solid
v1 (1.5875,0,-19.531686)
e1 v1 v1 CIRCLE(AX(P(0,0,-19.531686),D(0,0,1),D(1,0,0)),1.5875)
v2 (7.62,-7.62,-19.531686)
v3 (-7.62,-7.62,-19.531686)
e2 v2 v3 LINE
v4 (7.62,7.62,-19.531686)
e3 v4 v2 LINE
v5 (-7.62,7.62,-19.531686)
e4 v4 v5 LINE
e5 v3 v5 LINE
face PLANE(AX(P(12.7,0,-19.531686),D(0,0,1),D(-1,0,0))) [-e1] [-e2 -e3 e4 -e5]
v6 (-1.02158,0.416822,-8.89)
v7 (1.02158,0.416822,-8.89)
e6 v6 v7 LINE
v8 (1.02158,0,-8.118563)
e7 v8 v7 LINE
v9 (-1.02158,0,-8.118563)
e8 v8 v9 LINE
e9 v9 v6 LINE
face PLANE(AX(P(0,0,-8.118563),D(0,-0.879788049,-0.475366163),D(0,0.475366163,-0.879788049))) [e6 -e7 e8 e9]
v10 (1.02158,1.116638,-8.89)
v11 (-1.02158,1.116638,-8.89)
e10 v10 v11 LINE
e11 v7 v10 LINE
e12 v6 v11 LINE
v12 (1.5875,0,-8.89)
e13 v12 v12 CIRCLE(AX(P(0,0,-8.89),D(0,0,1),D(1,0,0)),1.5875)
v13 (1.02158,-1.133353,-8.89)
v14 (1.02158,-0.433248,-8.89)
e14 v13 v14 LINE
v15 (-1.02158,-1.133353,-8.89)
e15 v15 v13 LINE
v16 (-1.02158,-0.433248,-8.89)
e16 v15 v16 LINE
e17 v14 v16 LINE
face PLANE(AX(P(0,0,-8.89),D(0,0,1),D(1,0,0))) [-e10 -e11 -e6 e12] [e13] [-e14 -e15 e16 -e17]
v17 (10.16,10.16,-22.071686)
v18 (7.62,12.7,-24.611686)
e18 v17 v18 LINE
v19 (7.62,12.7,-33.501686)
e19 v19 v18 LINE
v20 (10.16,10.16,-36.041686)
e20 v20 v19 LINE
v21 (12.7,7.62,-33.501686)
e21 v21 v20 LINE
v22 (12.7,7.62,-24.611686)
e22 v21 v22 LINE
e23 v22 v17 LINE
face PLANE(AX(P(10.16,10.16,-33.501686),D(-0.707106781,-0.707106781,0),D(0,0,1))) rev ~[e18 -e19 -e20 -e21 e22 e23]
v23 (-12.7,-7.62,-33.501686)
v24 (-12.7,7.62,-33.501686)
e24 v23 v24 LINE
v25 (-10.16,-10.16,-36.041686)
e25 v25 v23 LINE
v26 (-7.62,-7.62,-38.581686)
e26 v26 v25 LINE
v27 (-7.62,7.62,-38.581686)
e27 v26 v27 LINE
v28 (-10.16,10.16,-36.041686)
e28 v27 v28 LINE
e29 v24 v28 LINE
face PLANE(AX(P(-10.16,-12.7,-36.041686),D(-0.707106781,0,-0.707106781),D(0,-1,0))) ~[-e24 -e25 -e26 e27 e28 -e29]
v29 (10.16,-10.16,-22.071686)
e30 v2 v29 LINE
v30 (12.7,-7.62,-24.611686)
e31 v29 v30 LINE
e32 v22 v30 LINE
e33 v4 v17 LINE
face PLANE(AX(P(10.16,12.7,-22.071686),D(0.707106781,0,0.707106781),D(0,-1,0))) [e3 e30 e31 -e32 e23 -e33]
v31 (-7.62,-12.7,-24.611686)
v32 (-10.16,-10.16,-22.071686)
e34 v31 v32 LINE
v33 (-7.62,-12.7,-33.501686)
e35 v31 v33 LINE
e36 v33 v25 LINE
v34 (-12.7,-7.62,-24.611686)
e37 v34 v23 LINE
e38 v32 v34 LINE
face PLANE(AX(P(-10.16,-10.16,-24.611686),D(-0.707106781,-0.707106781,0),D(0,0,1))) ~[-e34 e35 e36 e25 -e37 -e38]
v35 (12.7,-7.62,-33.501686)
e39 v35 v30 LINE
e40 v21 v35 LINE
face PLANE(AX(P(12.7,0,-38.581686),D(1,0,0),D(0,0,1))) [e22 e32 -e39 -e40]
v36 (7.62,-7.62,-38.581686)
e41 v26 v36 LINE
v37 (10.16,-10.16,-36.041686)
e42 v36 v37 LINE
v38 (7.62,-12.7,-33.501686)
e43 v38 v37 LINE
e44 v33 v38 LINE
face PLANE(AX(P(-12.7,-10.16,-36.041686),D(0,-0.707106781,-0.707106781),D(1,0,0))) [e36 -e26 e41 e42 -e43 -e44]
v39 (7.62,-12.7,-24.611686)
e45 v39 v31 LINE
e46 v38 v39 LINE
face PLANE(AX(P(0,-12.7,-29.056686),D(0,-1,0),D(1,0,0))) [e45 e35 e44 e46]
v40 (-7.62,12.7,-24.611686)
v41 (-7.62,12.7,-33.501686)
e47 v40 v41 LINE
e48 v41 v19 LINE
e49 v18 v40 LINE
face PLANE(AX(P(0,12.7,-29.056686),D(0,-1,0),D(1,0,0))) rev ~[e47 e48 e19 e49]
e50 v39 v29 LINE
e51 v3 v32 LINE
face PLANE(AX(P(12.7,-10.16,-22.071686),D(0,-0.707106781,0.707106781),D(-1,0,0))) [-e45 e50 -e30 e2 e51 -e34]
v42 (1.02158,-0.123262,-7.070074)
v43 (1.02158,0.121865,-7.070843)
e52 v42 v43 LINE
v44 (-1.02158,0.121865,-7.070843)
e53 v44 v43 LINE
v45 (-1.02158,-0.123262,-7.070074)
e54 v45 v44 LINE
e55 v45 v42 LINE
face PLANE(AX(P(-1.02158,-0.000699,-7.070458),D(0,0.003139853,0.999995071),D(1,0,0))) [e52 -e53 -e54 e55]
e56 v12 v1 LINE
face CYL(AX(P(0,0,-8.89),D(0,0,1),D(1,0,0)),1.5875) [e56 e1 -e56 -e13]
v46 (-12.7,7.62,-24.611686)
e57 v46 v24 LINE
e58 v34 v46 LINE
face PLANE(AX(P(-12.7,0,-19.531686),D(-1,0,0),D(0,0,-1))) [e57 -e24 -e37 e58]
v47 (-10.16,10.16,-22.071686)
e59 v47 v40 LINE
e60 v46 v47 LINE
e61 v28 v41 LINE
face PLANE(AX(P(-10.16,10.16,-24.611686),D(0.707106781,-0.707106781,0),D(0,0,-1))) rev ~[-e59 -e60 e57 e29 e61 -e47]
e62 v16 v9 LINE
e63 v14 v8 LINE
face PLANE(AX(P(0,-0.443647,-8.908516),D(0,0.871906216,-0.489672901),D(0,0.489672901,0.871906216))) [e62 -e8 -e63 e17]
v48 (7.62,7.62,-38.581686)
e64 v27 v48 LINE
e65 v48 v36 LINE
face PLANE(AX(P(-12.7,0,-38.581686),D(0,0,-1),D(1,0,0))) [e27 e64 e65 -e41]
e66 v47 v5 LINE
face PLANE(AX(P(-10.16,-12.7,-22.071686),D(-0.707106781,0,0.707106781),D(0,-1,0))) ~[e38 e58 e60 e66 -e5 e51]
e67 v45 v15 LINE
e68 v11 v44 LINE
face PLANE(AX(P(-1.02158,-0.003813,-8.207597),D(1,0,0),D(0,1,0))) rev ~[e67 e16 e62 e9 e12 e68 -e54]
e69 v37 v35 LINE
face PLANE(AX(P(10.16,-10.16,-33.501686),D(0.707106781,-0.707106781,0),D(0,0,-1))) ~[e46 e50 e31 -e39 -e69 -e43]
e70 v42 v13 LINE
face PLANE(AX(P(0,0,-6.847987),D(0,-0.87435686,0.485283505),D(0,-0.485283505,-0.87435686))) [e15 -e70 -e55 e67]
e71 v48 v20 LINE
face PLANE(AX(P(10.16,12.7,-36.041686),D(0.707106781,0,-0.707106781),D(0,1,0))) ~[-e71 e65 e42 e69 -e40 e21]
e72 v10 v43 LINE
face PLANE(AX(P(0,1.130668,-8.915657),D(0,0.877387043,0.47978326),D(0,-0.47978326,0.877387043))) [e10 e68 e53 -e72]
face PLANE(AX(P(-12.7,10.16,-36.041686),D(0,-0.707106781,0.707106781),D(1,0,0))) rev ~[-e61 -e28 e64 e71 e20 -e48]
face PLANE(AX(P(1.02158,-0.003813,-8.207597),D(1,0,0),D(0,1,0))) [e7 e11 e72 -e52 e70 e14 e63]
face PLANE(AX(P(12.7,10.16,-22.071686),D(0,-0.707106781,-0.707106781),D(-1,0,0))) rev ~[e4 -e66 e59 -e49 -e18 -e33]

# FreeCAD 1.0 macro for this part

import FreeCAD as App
import Part
import Sketcher

V = App.Vector
Q = App.Units.Quantity


def edges_at(feature, points):
    """Names of the edges that pass closest to the given points."""
    edges = feature.Shape.Edges
    near = lambda p: min(range(len(edges)), key=lambda i: edges[i].distToShape(Part.Vertex(*p))[0])
    return sorted({f"Edge{near(p) + 1}" for p in points})


def add_polygon(sketch, points):
    """Adds a closed chain of lines whose ends are joined by coincident constraints."""
    first, n = sketch.GeometryCount, len(points)
    for a, b in zip(points, points[1:] + points[:1]):
        sketch.addGeometry(Part.LineSegment(App.Vector(*a, 0), App.Vector(*b, 0)), False)
    for i in range(n):
        sketch.addConstraint(Sketcher.Constraint("Coincident", first + i, 2, first + (i + 1) % n, 1))

doc = App.newDocument("Part")
params = doc.addObject("Spreadsheet::Sheet", "Params")
for row, (alias, value) in enumerate([
    ("sketch1_width", "1 in"),
    ("sketch1_height", "0.75 in"),
    ("pad1_length", "1 in"),
    ("chamfer_size", "0.2 in"),
    ("sketch2_diameter", "0.125 in"),
    ("pad2_length", "11.73114 mm"),
    ("chamfer2_size", "0.2 in"),
    ("pad3_length", "2.04316 mm"),
    ("chamfer3_size", "0.01 in"),
], start=1):
    params.set(f"A{row}", alias)
    params.set(f"B{row}", "=" + value)
    params.setAlias(f"B{row}", alias)

body = doc.addObject("PartDesign::Body", "Body")

# Sketch on XZ plane
sketch1 = body.newObject("Sketcher::SketchObject", "Sketch")
sketch1.AttachmentSupport = (doc.getObject("XZ_Plane"), [""])
sketch1.MapMode = "FlatFace"
add_polygon(sketch1, [(-13, -39), (13, -39), (13, -20), (-13, -20)])  # lines 0-3
sketch1.addConstraint(Sketcher.Constraint("Horizontal", 0))
sketch1.addConstraint(Sketcher.Constraint("Vertical", 1))
sketch1.addConstraint(Sketcher.Constraint("Horizontal", 2))
sketch1.addConstraint(Sketcher.Constraint("Vertical", 3))
sketch1.addConstraint(Sketcher.Constraint("DistanceX", 0, 1, 0, 2, Q("1 in")))
sketch1.addConstraint(Sketcher.Constraint("DistanceY", 1, 1, 1, 2, Q("0.75 in")))
sketch1.addConstraint(Sketcher.Constraint("DistanceX", -1, 1, 0, 2, Q("0.5 in")))
sketch1.addConstraint(Sketcher.Constraint("DistanceY", 0, 2, -1, 1, Q("38.581686 mm")))
sketch1.setExpression("Constraints[8]", "Params.sketch1_width")
sketch1.setExpression("Constraints[9]", "Params.sketch1_height")
pad1 = body.newObject("PartDesign::Pad", "Pad")
pad1.Profile = sketch1
pad1.setExpression("Length", "Params.pad1_length")
pad1.Midplane = True
doc.recompute()

chamfer = body.newObject("PartDesign::Chamfer", "Chamfer")
chamfer.Base = (pad1, edges_at(pad1, [
    (0, -12.7, -19.532),
    (12.7, 0, -19.532),
    (-12.7, 0, -19.532),
    (0, 12.7, -19.532),
    (-12.7, 0, -38.582),
    (0, -12.7, -38.582),
    (12.7, 0, -38.582),
    (0, 12.7, -38.582),
]))
chamfer.setExpression("Size", "Params.chamfer_size")

# Sketch on XY plane
sketch2 = body.newObject("Sketcher::SketchObject", "Sketch001")
sketch2.AttachmentSupport = (doc.getObject("XY_Plane"), [""])
sketch2.MapMode = "FlatFace"
sketch2.AttachmentOffset = App.Placement(V(0, 0, -0.35 * 25.4), App.Rotation())
sketch2.addGeometry(Part.Circle(V(0, 0, 0), V(0, 0, 1), 1.6), False)
sketch2.addConstraint(Sketcher.Constraint("Coincident", 0, 3, -1, 1))
sketch2.addConstraint(Sketcher.Constraint("Diameter", 0, Q("0.125 in")))
sketch2.setExpression("Constraints[1]", "Params.sketch2_diameter")
pad2 = body.newObject("PartDesign::Pad", "Pad001")
pad2.Profile = sketch2
pad2.setExpression("Length", "Params.pad2_length")
pad2.Reversed = True
doc.recompute()

chamfer2 = body.newObject("PartDesign::Chamfer", "Chamfer001")
chamfer2.Base = (pad2, edges_at(pad2, [
    (-12.7, 12.7, -29.057),
    (12.7, 12.7, -29.057),
    (12.7, -12.7, -29.057),
    (-12.7, -12.7, -29.057),
]))
chamfer2.setExpression("Size", "Params.chamfer2_size")

# Sketch on YZ plane
sketch3 = body.newObject("Sketcher::SketchObject", "Sketch002")
sketch3.AttachmentSupport = (doc.getObject("YZ_Plane"), [""])
sketch3.MapMode = "FlatFace"
add_polygon(sketch3, [(0.4, -8.9), (1.1, -8.9), (0, -6.8), (-1.1, -8.9), (-0.4, -8.9), (0, -8.1)])  # lines 0-5
sketch3.addConstraint(Sketcher.Constraint("Horizontal", 0))
sketch3.addConstraint(Sketcher.Constraint("Horizontal", 3))
sketch3.addConstraint(Sketcher.Constraint("PointOnObject", 1, 2, -2))
sketch3.addConstraint(Sketcher.Constraint("PointOnObject", 4, 2, -2))
sketch3.addConstraint(Sketcher.Constraint("Equal", 0, 3))
sketch3.addConstraint(Sketcher.Constraint("Equal", 1, 2))
sketch3.addConstraint(Sketcher.Constraint("Equal", 4, 5))
sketch3.addConstraint(Sketcher.Constraint("DistanceX", 0, 1, 0, 2, Q("0.699983 mm")))
sketch3.addConstraint(Sketcher.Constraint("DistanceX", 2, 2, -1, 1, Q("1.14363 mm")))
sketch3.addConstraint(Sketcher.Constraint("DistanceY", 0, 2, 1, 2, Q("2.06767 mm")))
sketch3.addConstraint(Sketcher.Constraint("DistanceY", 0, 2, 2, 2, Q("0.007141 mm")))
sketch3.addConstraint(Sketcher.Constraint("DistanceY", 0, 2, -1, 1, Q("8.915657 mm")))
pad3 = body.newObject("PartDesign::Pad", "Pad002")
pad3.Profile = sketch3
pad3.setExpression("Length", "Params.pad3_length")
pad3.Midplane = True
doc.recompute()

chamfer3 = body.newObject("PartDesign::Chamfer", "Chamfer002")
chamfer3.Base = (pad3, edges_at(pad3, [(0, 0, -6.848)]))
chamfer3.setExpression("Size", "Params.chamfer3_size")

doc.recompute()
